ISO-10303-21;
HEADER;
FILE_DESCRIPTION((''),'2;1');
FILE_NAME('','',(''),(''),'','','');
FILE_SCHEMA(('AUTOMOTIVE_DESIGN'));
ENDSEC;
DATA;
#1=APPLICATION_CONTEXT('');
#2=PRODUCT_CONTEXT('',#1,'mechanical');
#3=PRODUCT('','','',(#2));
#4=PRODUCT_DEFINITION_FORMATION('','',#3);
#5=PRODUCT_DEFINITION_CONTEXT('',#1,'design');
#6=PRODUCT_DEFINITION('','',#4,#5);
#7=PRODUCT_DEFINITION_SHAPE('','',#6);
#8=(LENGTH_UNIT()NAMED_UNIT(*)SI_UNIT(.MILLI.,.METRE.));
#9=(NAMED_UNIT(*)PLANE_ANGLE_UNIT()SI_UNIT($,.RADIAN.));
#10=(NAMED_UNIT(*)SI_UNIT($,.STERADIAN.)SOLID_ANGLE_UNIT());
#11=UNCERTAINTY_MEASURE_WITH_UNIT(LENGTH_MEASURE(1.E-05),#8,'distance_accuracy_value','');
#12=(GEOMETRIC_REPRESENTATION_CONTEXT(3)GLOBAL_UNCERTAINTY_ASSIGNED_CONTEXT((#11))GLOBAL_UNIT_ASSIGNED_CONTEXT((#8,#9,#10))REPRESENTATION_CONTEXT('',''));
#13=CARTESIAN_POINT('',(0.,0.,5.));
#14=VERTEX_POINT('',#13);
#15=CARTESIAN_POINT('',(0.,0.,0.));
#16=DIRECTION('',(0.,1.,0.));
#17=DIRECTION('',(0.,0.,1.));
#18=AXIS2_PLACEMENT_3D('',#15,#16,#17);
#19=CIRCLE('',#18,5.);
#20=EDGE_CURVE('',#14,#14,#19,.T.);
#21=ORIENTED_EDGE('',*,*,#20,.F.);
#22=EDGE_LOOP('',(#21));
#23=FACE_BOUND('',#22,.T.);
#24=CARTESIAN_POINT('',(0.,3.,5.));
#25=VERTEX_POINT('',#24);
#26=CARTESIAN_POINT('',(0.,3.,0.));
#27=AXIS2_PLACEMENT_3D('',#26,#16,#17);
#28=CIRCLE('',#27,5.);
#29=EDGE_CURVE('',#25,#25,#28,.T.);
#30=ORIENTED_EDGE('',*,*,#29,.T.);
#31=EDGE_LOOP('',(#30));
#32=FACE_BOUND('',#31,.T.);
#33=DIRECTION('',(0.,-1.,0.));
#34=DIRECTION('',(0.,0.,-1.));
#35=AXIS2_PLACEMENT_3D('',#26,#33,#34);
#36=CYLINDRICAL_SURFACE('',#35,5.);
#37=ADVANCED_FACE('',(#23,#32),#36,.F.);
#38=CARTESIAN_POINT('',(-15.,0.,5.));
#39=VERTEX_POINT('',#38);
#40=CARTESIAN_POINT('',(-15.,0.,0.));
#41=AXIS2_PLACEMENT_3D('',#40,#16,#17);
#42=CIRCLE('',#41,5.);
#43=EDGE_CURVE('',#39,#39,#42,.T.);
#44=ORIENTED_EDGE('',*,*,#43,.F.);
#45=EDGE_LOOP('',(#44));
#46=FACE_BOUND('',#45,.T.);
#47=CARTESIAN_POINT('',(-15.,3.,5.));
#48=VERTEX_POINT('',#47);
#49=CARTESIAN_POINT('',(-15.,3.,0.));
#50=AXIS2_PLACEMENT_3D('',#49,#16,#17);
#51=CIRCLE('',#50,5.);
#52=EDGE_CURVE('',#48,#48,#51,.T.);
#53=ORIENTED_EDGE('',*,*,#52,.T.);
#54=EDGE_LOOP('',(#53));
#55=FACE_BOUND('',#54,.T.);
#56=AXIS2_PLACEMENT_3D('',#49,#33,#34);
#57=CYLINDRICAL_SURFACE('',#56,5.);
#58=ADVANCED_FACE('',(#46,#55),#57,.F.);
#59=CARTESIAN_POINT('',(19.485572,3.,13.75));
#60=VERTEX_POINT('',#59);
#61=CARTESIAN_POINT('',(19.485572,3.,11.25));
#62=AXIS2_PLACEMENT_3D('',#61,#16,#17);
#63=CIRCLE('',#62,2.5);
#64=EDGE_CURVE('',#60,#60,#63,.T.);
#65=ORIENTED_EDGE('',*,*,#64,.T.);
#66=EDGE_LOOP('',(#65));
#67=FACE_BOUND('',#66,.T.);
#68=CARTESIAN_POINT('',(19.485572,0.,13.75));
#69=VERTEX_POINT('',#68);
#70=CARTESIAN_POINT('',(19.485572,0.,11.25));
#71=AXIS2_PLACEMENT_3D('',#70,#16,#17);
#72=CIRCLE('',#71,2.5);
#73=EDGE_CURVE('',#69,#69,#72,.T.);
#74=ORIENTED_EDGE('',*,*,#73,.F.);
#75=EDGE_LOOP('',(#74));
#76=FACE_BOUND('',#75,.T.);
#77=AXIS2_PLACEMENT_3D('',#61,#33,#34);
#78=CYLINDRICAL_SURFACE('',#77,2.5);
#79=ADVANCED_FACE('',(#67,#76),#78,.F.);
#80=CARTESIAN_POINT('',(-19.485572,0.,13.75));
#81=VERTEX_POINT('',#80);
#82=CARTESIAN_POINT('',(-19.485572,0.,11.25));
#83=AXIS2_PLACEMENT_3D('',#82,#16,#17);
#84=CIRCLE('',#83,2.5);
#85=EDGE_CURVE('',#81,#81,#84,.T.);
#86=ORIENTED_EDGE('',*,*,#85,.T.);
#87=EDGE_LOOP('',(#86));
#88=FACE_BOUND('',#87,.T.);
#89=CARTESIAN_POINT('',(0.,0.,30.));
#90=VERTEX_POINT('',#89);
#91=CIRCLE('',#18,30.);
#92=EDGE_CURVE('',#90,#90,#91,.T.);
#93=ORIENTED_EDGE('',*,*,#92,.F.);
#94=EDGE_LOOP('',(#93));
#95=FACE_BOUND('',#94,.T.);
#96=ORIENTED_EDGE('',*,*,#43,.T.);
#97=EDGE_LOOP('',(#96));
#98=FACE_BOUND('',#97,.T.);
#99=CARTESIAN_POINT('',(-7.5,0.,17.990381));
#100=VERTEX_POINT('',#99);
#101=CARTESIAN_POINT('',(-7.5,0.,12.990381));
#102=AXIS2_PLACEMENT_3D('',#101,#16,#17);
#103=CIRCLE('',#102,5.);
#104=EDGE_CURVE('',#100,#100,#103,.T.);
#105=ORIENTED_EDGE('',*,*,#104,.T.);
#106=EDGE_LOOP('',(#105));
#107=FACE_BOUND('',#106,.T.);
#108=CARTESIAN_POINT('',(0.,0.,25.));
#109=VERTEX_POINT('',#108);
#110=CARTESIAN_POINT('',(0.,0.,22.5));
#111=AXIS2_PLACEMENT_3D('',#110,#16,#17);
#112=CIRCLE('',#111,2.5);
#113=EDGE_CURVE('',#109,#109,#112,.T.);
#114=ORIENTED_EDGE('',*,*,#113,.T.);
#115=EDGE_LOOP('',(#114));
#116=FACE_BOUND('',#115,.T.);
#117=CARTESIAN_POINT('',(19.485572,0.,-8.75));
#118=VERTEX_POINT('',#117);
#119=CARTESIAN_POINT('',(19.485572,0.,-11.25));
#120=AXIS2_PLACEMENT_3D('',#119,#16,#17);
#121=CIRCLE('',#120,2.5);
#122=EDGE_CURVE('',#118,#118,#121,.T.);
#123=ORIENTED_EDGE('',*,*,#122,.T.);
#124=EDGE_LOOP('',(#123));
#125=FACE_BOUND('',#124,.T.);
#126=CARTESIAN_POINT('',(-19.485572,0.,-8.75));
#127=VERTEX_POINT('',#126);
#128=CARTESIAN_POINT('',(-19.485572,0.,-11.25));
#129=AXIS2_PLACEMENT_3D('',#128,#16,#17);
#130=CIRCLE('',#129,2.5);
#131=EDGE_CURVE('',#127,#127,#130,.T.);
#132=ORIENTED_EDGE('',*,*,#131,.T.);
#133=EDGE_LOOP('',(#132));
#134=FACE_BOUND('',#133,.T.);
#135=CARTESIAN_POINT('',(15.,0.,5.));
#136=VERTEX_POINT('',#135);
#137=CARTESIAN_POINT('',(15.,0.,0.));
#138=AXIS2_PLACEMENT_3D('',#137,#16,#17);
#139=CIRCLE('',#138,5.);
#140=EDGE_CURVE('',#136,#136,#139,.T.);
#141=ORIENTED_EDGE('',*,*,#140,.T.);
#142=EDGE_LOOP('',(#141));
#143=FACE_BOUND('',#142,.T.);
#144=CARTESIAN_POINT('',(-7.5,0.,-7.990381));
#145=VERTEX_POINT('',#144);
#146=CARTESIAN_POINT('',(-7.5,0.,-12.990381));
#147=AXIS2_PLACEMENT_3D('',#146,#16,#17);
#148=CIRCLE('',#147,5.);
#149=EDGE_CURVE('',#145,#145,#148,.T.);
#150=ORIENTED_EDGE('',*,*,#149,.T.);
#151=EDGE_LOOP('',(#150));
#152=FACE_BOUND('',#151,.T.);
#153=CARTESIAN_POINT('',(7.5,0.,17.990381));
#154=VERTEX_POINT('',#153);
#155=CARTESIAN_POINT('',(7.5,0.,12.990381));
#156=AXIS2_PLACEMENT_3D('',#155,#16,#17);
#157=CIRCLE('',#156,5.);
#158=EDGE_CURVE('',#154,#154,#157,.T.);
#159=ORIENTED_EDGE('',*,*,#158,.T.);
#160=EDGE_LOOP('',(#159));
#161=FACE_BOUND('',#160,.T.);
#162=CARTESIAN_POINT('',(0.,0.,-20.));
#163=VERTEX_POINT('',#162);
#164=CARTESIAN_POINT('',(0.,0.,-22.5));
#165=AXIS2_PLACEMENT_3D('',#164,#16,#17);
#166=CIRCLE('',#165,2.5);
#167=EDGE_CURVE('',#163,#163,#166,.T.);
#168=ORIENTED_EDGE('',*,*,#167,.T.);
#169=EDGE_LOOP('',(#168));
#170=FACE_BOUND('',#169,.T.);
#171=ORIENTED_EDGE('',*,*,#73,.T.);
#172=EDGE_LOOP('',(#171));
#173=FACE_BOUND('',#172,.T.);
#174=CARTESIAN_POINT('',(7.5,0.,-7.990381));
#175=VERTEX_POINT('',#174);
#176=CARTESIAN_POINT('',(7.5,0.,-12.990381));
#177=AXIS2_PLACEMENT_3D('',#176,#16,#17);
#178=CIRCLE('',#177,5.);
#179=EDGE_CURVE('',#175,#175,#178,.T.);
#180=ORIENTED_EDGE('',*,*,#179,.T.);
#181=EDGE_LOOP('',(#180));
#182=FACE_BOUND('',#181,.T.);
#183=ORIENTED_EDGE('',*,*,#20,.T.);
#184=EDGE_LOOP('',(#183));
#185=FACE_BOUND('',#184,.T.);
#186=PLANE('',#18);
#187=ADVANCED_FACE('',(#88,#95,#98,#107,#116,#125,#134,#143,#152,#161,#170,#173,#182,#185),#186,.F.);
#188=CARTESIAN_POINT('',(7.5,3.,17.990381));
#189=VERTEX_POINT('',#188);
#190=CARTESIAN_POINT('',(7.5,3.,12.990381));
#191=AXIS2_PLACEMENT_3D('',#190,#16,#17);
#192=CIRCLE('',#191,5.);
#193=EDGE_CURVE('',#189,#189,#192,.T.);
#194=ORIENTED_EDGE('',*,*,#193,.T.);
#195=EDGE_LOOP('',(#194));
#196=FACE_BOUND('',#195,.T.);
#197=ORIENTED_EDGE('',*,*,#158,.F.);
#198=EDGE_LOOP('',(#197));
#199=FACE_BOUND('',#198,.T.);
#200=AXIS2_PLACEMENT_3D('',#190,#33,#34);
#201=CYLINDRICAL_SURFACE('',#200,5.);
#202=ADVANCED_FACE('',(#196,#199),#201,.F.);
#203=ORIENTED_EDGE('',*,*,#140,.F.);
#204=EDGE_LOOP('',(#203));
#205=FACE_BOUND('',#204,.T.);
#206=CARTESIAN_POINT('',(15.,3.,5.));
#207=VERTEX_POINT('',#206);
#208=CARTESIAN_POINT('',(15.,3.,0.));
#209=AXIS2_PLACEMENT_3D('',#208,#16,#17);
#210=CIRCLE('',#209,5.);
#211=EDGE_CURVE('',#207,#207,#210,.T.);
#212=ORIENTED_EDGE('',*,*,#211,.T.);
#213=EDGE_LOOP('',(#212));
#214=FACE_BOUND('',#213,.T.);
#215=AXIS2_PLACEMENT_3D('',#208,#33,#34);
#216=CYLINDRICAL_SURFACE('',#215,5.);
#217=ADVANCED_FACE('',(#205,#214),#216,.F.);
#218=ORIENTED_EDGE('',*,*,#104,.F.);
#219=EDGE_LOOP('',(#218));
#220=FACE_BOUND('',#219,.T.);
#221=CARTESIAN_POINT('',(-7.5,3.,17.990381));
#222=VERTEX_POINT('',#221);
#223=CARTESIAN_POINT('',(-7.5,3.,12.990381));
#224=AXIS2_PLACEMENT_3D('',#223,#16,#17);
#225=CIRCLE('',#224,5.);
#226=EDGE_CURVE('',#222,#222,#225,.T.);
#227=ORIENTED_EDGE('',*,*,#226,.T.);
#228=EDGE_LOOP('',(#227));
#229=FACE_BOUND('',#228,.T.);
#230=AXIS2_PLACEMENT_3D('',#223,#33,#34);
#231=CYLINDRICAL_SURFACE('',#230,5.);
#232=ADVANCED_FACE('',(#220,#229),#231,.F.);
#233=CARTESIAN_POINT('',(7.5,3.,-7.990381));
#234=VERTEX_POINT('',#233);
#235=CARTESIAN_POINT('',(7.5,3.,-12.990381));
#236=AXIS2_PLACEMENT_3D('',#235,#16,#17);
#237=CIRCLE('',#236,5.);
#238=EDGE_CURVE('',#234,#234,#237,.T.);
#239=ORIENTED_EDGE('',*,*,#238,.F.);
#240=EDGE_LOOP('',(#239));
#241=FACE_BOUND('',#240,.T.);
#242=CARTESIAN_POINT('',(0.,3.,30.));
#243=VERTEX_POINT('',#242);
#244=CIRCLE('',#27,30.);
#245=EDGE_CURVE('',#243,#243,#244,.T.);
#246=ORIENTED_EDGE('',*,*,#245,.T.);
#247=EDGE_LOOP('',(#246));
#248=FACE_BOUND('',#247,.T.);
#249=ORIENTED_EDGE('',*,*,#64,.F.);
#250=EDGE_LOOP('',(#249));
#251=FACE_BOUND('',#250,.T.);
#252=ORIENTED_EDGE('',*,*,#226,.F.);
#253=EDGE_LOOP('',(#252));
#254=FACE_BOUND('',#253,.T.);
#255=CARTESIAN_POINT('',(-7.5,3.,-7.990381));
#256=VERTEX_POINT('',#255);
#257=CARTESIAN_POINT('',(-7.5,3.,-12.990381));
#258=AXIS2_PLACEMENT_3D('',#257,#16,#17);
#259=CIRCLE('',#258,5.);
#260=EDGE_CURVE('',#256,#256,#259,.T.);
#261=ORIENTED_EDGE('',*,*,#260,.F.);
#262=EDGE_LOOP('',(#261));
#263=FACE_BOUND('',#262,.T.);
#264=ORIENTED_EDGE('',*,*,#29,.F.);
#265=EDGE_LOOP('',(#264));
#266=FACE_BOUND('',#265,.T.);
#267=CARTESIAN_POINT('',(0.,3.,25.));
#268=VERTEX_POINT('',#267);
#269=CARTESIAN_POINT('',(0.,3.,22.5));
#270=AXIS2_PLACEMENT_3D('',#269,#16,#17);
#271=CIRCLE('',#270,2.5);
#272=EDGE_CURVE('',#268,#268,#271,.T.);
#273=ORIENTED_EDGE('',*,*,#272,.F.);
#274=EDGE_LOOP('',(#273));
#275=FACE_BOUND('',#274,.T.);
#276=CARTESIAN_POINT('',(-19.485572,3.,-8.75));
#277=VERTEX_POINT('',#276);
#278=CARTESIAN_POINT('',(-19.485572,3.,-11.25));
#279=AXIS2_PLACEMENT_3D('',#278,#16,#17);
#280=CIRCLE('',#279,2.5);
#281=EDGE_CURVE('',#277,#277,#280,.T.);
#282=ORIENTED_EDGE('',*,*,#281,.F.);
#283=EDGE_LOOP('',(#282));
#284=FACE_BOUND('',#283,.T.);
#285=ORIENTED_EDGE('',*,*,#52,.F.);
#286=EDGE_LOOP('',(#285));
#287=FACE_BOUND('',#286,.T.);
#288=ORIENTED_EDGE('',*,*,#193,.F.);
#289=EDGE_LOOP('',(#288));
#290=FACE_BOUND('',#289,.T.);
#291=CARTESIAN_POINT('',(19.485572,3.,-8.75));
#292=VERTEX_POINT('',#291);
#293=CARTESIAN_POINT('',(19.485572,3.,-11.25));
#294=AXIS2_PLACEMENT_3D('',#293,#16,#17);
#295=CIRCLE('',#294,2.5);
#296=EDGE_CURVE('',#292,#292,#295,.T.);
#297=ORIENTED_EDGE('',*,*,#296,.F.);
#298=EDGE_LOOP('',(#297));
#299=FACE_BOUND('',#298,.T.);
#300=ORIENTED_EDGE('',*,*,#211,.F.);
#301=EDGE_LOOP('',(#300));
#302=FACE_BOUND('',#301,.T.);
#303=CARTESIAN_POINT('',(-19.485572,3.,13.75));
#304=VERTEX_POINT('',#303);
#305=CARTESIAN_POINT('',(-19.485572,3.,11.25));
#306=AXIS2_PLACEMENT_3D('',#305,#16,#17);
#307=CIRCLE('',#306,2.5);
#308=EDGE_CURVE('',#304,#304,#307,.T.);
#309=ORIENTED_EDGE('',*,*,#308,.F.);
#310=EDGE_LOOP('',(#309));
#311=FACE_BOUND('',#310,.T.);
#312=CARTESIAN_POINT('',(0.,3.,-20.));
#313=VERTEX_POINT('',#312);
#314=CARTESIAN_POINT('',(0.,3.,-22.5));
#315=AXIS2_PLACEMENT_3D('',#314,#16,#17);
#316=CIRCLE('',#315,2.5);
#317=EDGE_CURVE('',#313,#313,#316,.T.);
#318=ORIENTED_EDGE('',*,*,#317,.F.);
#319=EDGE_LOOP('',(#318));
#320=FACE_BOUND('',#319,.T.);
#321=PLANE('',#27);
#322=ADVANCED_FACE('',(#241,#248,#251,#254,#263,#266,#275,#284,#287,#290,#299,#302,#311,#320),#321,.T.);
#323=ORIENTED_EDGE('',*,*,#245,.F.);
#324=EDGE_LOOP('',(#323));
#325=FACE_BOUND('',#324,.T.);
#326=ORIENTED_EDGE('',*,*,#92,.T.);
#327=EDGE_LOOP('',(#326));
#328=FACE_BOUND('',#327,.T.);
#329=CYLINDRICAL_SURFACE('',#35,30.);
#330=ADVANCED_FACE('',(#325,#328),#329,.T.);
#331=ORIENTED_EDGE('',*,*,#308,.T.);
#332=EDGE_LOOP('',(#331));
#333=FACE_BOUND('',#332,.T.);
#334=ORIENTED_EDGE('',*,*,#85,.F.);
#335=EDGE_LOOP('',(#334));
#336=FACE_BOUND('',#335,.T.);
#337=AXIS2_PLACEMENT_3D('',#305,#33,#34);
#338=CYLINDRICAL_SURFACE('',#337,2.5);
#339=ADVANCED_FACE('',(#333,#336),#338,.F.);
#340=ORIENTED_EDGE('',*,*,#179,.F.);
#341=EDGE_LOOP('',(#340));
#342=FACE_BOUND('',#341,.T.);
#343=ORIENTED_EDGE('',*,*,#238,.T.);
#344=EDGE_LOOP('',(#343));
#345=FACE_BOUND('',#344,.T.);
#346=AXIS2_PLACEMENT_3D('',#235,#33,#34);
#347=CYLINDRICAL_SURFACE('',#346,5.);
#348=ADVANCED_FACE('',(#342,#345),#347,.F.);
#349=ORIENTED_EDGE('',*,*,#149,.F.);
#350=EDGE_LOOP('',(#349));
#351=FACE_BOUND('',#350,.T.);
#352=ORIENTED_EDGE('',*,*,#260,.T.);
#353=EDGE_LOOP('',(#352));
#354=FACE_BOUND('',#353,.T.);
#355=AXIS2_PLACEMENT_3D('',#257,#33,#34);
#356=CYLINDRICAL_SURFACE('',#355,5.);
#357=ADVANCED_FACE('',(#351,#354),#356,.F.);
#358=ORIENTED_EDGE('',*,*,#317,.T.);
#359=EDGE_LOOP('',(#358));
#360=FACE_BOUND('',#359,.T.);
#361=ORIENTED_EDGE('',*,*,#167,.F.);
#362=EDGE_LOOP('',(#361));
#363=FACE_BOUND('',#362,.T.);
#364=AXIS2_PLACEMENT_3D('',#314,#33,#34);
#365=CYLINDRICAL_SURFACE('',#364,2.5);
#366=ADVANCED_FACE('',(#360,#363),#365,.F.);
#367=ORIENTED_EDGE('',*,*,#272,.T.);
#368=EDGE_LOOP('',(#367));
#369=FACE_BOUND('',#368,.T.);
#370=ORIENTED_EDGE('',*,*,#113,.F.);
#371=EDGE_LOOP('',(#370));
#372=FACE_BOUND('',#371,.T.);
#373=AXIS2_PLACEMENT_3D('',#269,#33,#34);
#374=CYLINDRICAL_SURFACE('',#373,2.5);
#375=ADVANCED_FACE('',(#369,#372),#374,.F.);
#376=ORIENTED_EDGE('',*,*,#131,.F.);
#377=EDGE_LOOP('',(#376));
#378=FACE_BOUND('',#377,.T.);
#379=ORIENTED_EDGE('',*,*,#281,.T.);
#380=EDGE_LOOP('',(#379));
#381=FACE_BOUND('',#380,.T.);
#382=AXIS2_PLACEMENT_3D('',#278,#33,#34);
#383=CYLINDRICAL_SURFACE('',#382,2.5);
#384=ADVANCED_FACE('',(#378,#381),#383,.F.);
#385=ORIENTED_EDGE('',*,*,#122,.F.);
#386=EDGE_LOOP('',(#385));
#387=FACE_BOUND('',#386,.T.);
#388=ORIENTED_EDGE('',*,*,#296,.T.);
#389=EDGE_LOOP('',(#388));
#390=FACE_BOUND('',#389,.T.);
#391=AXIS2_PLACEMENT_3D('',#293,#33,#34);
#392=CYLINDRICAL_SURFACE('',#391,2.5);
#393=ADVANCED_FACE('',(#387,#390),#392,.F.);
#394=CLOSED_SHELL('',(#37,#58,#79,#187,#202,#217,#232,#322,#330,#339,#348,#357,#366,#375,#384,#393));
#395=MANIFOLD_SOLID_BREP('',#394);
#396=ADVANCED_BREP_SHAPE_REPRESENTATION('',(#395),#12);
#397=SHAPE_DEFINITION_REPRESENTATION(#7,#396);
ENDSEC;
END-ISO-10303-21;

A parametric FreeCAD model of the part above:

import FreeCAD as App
import Part
import Sketcher

V = App.Vector

doc = App.newDocument("Part")
body = doc.addObject("PartDesign::Body", "Body")

sketch1 = body.newObject("Sketcher::SketchObject", "Sketch")
sketch1.AttachmentSupport = (doc.getObject("XZ_Plane"), [""])
sketch1.MapMode = "FlatFace"
sketch1.addGeometry(Part.Circle(V(0, 0, 0), V(0, 0, 1), 30), False)
sketch1.addGeometry(Part.Circle(V(-19.5, -11.2, 0), V(0, 0, 1), 2.5), False)
sketch1.addGeometry(Part.Circle(V(-7.5, -13, 0), V(0, 0, 1), 5), False)
sketch1.addGeometry(Part.Circle(V(0, -22.5, 0), V(0, 0, 1), 2.5), False)
sketch1.addGeometry(Part.Circle(V(-19.5, 11.2, 0), V(0, 0, 1), 2.5), False)
sketch1.addGeometry(Part.Circle(V(-15, 0, 0), V(0, 0, 1), 5), False)
sketch1.addGeometry(Part.Circle(V(-7.5, 13, 0), V(0, 0, 1), 5), False)
sketch1.addGeometry(Part.Circle(V(7.5, -13, 0), V(0, 0, 1), 5), False)
sketch1.addGeometry(Part.Circle(V(19.5, -11.2, 0), V(0, 0, 1), 2.5), False)
sketch1.addGeometry(Part.Circle(V(0, 0, 0), V(0, 0, 1), 5), False)
sketch1.addGeometry(Part.Circle(V(0, 22.5, 0), V(0, 0, 1), 2.5), False)
sketch1.addGeometry(Part.Circle(V(7.5, 13, 0), V(0, 0, 1), 5), False)
sketch1.addGeometry(Part.Circle(V(15, 0, 0), V(0, 0, 1), 5), False)
sketch1.addGeometry(Part.Circle(V(19.5, 11.2, 0), V(0, 0, 1), 2.5), False)
sketch1.addConstraint(Sketcher.Constraint("Coincident", 0, 3, -1, 1))
sketch1.addConstraint(Sketcher.Constraint("Coincident", 9, 3, -1, 1))
sketch1.addConstraint(Sketcher.Constraint("Equal", 1, 3))
sketch1.addConstraint(Sketcher.Constraint("Equal", 3, 4))
sketch1.addConstraint(Sketcher.Constraint("Equal", 2, 5))
sketch1.addConstraint(Sketcher.Constraint("Equal", 5, 6))
sketch1.addConstraint(Sketcher.Constraint("Equal", 6, 7))
sketch1.addConstraint(Sketcher.Constraint("Equal", 4, 8))
sketch1.addConstraint(Sketcher.Constraint("Equal", 7, 9))
sketch1.addConstraint(Sketcher.Constraint("Equal", 8, 10))
sketch1.addConstraint(Sketcher.Constraint("Equal", 9, 11))
sketch1.addConstraint(Sketcher.Constraint("Equal", 11, 12))
sketch1.addConstraint(Sketcher.Constraint("Equal", 10, 13))
sketch1.addConstraint(Sketcher.Constraint("Symmetric", 6, 3, 7, 3, -1, 1))
sketch1.addConstraint(Sketcher.Constraint("Symmetric", 4, 3, 8, 3, -1, 1))
sketch1.addConstraint(Sketcher.Constraint("Symmetric", 3, 3, 10, 3, -1, 1))
sketch1.addConstraint(Sketcher.Constraint("Symmetric", 2, 3, 11, 3, -1, 1))
sketch1.addConstraint(Sketcher.Constraint("Symmetric", 5, 3, 12, 3, -1, 1))
sketch1.addConstraint(Sketcher.Constraint("Symmetric", 1, 3, 13, 3, -1, 1))
sketch1.addConstraint(Sketcher.Constraint("Symmetric", 2, 3, 7, 3, -2))
sketch1.addConstraint(Sketcher.Constraint("Symmetric", 1, 3, 8, 3, -2))
sketch1.addConstraint(Sketcher.Constraint("PointOnObject", 3, 3, -2))
sketch1.addConstraint(Sketcher.Constraint("PointOnObject", 5, 3, -1))
sketch1.addConstraint(Sketcher.Constraint("Diameter", 0, 60.0))
sketch1.addConstraint(Sketcher.Constraint("Diameter", 1, 5.0))
sketch1.addConstraint(Sketcher.Constraint("Diameter", 2, 10.0))
sketch1.addConstraint(Sketcher.Constraint("DistanceX", 5, 3, -1, 1, 15.0))
sketch1.addConstraint(Sketcher.Constraint("DistanceX", 2, 3, 7, 3, 15.0))
sketch1.addConstraint(Sketcher.Constraint("DistanceY", 3, 3, -1, 1, 22.5))
sketch1.addConstraint(Sketcher.Constraint("DistanceY", 1, 3, 4, 3, 22.5))
sketch1.addConstraint(Sketcher.Constraint("DistanceX", 1, 3, -1, 1, 19.485572))
sketch1.addConstraint(Sketcher.Constraint("DistanceY", 2, 3, -1, 1, 12.990381))
pad1 = body.newObject("PartDesign::Pad", "Pad")
pad1.Profile = sketch1
pad1.Length = 3
pad1.Reversed = True

doc.recompute()
